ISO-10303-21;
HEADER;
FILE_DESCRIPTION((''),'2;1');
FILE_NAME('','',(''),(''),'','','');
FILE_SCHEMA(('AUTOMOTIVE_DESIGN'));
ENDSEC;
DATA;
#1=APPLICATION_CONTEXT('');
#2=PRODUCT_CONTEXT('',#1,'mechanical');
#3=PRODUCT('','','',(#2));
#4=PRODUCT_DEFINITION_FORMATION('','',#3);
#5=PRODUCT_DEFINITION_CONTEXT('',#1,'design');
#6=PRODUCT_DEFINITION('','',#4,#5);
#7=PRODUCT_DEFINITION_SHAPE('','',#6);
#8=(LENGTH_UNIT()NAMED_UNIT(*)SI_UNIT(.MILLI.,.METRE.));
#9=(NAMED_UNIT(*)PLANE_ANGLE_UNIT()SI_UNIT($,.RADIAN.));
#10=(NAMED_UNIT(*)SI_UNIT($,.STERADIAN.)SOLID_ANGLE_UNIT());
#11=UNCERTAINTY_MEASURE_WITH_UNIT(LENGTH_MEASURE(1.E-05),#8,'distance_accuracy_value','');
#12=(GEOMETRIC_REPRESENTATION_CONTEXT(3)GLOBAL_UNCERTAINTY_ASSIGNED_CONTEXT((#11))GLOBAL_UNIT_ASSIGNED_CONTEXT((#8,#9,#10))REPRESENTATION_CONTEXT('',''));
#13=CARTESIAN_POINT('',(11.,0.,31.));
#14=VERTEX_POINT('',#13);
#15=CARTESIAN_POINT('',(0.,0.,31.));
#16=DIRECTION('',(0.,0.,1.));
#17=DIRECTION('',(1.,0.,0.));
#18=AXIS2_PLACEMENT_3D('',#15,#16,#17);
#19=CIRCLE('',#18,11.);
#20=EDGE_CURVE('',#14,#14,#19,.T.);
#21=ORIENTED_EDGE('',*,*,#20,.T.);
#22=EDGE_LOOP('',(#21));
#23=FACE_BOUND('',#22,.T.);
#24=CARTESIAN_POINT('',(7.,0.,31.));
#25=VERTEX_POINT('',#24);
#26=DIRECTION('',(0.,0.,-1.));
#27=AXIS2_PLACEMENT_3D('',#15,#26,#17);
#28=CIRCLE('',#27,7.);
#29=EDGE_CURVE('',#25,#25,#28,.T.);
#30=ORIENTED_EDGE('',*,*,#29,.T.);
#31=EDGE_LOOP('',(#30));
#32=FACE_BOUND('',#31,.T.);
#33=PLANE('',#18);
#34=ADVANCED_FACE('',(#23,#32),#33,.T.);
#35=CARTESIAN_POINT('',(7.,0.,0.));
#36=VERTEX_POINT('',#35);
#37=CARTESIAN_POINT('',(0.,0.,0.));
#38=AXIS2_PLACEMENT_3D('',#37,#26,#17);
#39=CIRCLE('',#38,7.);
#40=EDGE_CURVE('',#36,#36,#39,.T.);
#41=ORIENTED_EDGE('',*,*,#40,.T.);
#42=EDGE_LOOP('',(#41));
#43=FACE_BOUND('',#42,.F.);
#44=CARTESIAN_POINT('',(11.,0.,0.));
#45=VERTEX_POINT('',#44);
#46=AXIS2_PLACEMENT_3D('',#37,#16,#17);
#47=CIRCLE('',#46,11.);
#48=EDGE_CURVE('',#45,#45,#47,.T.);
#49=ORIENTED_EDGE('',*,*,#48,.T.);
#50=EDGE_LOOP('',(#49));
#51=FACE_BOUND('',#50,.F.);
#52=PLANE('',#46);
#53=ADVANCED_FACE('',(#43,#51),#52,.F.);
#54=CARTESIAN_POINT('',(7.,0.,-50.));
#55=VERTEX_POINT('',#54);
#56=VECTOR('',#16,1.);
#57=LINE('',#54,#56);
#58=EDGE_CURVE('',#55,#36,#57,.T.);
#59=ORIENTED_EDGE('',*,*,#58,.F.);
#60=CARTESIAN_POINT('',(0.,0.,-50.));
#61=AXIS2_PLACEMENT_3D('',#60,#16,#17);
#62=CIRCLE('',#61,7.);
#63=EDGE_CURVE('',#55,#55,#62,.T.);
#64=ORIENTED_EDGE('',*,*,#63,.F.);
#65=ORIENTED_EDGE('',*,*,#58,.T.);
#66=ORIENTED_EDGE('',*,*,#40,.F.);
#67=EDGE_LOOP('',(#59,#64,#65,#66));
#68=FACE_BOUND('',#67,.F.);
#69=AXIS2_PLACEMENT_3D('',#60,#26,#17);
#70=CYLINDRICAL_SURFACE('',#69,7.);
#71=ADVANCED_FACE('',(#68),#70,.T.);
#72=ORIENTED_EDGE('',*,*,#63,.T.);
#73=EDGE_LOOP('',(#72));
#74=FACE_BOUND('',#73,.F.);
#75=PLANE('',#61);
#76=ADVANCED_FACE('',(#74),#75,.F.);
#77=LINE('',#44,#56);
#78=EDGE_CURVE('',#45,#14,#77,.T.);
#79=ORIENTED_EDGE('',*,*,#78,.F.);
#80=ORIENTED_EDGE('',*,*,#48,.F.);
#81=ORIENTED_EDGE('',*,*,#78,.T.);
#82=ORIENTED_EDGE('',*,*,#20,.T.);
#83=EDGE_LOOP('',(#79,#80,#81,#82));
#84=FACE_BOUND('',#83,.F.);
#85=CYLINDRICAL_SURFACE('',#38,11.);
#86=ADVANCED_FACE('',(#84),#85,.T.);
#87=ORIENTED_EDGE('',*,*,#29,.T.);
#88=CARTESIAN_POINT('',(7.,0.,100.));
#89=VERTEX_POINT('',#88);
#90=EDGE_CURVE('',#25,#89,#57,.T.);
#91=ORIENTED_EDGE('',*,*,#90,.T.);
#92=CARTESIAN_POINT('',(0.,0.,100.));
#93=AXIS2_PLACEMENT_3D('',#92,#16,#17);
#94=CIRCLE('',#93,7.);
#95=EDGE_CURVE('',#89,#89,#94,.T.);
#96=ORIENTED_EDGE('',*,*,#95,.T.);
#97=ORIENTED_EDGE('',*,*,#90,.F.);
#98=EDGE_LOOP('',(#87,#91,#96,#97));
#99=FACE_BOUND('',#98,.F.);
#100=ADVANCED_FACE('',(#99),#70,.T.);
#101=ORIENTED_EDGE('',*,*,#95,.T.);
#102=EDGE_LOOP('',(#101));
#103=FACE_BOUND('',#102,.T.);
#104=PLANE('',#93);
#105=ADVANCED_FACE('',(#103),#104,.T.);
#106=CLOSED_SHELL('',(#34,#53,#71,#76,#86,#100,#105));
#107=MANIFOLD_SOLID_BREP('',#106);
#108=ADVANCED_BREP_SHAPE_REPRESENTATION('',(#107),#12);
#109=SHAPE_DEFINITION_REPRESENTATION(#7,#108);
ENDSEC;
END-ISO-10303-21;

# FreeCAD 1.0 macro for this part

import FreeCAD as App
import Part
import Sketcher

V = App.Vector
Q = App.Units.Quantity

doc = App.newDocument("Part")
body = doc.addObject("PartDesign::Body", "Body")

# Sketch on XY plane
sketch1 = body.newObject("Sketcher::SketchObject", "Sketch")
sketch1.AttachmentSupport = (doc.getObject("XY_Plane"), [""])
sketch1.MapMode = "FlatFace"
sketch1.AttachmentOffset = App.Placement(V(0, 0, -50), App.Rotation())
sketch1.addGeometry(Part.Circle(V(0, 0, 0), V(0, 0, 1), 7), False)
sketch1.addConstraint([
    Sketcher.Constraint("Coincident", 0, 3, -1, 1),
    Sketcher.Constraint("Diameter", 0, Q("14 mm")),
])
pad1 = body.newObject("PartDesign::Pad", "Pad")
pad1.Profile = sketch1
pad1.Length = 150
body2 = doc.addObject("PartDesign::Body", "Body001")

# Sketch on XY plane
sketch2 = body2.newObject("Sketcher::SketchObject", "Sketch001")
sketch2.AttachmentSupport = (doc.getObject("XY_Plane001"), [""])
sketch2.MapMode = "FlatFace"
sketch2.addGeometry(Part.Circle(V(0, 0, 0), V(0, 0, 1), 11), False)
sketch2.addConstraint([
    Sketcher.Constraint("Coincident", 0, 3, -1, 1),
    Sketcher.Constraint("Diameter", 0, Q("22 mm")),
])
pad2 = body2.newObject("PartDesign::Pad", "Pad001")
pad2.Profile = sketch2
pad2.Length = 31
doc.recompute()

boolean = body2.newObject("PartDesign::Boolean", "Boolean")
boolean.Type = "Fuse"
boolean.addObjects([body])

doc.recompute()
